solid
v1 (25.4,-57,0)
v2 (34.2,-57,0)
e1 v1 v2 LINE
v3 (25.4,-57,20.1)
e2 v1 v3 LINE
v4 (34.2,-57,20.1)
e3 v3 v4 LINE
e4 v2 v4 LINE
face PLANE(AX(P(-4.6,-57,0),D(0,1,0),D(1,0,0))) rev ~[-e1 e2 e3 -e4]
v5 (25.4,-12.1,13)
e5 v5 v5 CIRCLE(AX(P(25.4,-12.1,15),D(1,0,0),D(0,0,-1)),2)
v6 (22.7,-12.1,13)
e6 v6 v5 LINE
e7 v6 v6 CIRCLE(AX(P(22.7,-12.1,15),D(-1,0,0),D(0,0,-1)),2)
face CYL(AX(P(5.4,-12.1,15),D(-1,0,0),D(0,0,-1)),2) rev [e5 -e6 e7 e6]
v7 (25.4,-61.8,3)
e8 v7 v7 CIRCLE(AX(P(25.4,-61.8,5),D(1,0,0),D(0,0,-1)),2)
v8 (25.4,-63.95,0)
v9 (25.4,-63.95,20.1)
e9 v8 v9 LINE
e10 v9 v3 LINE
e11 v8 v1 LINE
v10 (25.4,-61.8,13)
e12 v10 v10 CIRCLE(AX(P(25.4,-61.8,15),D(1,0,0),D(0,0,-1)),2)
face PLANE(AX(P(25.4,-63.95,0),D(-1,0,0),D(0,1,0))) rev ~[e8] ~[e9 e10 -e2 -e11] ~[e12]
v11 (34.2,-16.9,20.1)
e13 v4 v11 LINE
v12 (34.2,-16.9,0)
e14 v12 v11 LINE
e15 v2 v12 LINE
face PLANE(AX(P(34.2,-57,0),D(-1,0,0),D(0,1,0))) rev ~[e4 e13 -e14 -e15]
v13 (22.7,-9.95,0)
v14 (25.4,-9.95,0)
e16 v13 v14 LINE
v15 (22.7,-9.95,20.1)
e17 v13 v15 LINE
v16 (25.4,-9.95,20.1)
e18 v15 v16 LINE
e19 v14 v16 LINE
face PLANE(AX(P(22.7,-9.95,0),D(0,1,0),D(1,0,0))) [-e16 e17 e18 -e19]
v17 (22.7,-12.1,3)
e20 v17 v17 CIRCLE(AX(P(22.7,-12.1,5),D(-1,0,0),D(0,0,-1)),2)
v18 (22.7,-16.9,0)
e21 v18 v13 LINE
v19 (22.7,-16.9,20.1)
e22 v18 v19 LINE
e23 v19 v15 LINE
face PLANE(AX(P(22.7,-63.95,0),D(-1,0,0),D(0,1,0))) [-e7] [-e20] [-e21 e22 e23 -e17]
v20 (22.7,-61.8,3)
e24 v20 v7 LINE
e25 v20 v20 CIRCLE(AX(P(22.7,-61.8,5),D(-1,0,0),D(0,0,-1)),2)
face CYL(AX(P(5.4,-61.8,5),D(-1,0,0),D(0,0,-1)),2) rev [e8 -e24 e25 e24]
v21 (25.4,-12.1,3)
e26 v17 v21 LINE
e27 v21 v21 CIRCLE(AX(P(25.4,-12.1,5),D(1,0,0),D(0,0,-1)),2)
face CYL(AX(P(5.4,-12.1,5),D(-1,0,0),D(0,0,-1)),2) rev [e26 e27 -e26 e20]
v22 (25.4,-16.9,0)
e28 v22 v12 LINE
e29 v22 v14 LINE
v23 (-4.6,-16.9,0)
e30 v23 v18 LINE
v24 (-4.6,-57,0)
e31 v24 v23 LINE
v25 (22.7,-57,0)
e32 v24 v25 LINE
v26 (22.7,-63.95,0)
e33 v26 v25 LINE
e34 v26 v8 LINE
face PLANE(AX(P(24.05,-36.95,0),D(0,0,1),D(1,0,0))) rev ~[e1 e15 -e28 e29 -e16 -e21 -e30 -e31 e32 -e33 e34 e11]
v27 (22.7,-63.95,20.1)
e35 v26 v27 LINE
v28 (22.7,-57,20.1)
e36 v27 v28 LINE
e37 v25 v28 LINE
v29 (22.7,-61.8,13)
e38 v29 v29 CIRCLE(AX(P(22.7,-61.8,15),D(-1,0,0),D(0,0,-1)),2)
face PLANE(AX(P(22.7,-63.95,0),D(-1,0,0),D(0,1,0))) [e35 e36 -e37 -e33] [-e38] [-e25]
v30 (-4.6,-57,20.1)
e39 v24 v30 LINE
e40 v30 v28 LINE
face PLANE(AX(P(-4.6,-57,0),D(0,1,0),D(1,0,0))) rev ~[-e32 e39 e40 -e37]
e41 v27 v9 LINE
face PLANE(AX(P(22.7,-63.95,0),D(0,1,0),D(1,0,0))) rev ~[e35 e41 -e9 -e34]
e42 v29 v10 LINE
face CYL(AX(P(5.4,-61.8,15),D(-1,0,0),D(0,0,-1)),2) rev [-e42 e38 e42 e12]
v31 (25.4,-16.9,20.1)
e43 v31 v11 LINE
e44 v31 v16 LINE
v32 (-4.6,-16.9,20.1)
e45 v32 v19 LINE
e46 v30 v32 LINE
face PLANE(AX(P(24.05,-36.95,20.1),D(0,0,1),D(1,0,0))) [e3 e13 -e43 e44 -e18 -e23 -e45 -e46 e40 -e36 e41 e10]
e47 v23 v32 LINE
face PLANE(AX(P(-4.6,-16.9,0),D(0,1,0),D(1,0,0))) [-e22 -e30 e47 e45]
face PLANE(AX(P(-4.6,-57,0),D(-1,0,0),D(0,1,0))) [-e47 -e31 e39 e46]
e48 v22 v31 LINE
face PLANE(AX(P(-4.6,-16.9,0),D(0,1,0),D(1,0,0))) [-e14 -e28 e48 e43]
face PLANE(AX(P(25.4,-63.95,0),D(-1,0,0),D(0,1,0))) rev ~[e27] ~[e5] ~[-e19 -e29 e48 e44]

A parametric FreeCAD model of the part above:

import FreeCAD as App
import Part
import Sketcher


def add_polygon(sketch, points):
    """Adds a closed chain of lines whose ends are joined by coincident constraints."""
    first, n = sketch.GeometryCount, len(points)
    for a, b in zip(points, points[1:] + points[:1]):
        sketch.addGeometry(Part.LineSegment(App.Vector(*a, 0), App.Vector(*b, 0)), False)
    for i in range(n):
        sketch.addConstraint(Sketcher.Constraint("Coincident", first + i, 2, first + (i + 1) % n, 1))

doc = App.newDocument("Part")
body = doc.addObject("PartDesign::Body", "Body")

sketch1 = body.newObject("Sketcher::SketchObject", "Sketch")
sketch1.AttachmentSupport = (doc.getObject("YZ_Plane"), [""])
sketch1.MapMode = "FlatFace"
sketch1.AttachmentOffset = App.Placement(App.Vector(0, 0, 9.4), App.Rotation())
sketch1.addGeometry(Part.Circle(App.Vector(-71.8, 5, 0), App.Vector(0, 0, 1), 2), False)
sketch1.addConstraint([
    Sketcher.Constraint("Diameter", 0, 4.0),
    Sketcher.Constraint("DistanceY", -1, 1, 0, 3, 5.0),
    Sketcher.Constraint("DistanceX", 0, 3, -1, 1, 71.8),
])
pad1 = body.newObject("PartDesign::Pad", "Pad")
pad1.Profile = sketch1
pad1.Length = 20
body2 = doc.addObject("PartDesign::Body", "Body001")

sketch2 = body2.newObject("Sketcher::SketchObject", "Sketch001")
sketch2.AttachmentSupport = (doc.getObject("YZ_Plane001"), [""])
sketch2.MapMode = "FlatFace"
sketch2.AttachmentOffset = App.Placement(App.Vector(0, 0, 9.4), App.Rotation())
sketch2.addGeometry(Part.Circle(App.Vector(-71.8, 15, 0), App.Vector(0, 0, 1), 2), False)
sketch2.addConstraint([
    Sketcher.Constraint("Diameter", 0, 4.0),
    Sketcher.Constraint("DistanceY", -1, 1, 0, 3, 15.0),
    Sketcher.Constraint("DistanceX", 0, 3, -1, 1, 71.8),
])
pad2 = body2.newObject("PartDesign::Pad", "Pad001")
pad2.Profile = sketch2
pad2.Length = 20
body3 = doc.addObject("PartDesign::Body", "Body002")

sketch3 = body3.newObject("Sketcher::SketchObject", "Sketch002")
sketch3.AttachmentSupport = (doc.getObject("YZ_Plane002"), [""])
sketch3.MapMode = "FlatFace"
sketch3.AttachmentOffset = App.Placement(App.Vector(0, 0, 9.4), App.Rotation())
sketch3.addGeometry(Part.Circle(App.Vector(-22.1, 5, 0), App.Vector(0, 0, 1), 2), False)
sketch3.addConstraint([
    Sketcher.Constraint("Diameter", 0, 4.0),
    Sketcher.Constraint("DistanceY", -1, 1, 0, 3, 5.0),
    Sketcher.Constraint("DistanceX", 0, 3, -1, 1, 22.1),
])
pad3 = body3.newObject("PartDesign::Pad", "Pad002")
pad3.Profile = sketch3
pad3.Length = 20
body4 = doc.addObject("PartDesign::Body", "Body003")

sketch4 = body4.newObject("Sketcher::SketchObject", "Sketch003")
sketch4.AttachmentSupport = (doc.getObject("YZ_Plane003"), [""])
sketch4.MapMode = "FlatFace"
sketch4.AttachmentOffset = App.Placement(App.Vector(0, 0, 9.4), App.Rotation())
sketch4.addGeometry(Part.Circle(App.Vector(-22.1, 15, 0), App.Vector(0, 0, 1), 2), False)
sketch4.addConstraint([
    Sketcher.Constraint("Diameter", 0, 4.0),
    Sketcher.Constraint("DistanceY", -1, 1, 0, 3, 15.0),
    Sketcher.Constraint("DistanceX", 0, 3, -1, 1, 22.1),
])
pad4 = body4.newObject("PartDesign::Pad", "Pad003")
pad4.Profile = sketch4
pad4.Length = 20
body5 = doc.addObject("PartDesign::Body", "Body004")

sketch5 = body5.newObject("Sketcher::SketchObject", "Sketch004")
sketch5.AttachmentSupport = (doc.getObject("XY_Plane004"), [""])
sketch5.MapMode = "FlatFace"
add_polygon(sketch5, [(109.3, -46), (109.3, -100), (112, -100), (112, -46)])
sketch5.addConstraint([
    Sketcher.Constraint("Vertical", 0),
    Sketcher.Constraint("Horizontal", 1),
    Sketcher.Constraint("Vertical", 2),
    Sketcher.Constraint("Horizontal", 3),
    Sketcher.Constraint("DistanceY", 0, 2, 0, 1, 54.0),
    Sketcher.Constraint("DistanceX", 1, 1, 1, 2, 2.7),
    Sketcher.Constraint("DistanceX", -1, 1, 1, 2, 112.0),
    Sketcher.Constraint("DistanceY", 0, 2, -1, 1, 99.95),
])
pad5 = body5.newObject("PartDesign::Pad", "Pad004")
pad5.Profile = sketch5
pad5.Length = 20.1
body6 = doc.addObject("PartDesign::Body", "Body005")

sketch6 = body6.newObject("Sketcher::SketchObject", "Sketch005")
sketch6.AttachmentSupport = (doc.getObject("XY_Plane005"), [""])
sketch6.MapMode = "FlatFace"
add_polygon(sketch6, [(82, -53), (82, -93), (121, -93), (121, -53)])
sketch6.addConstraint([
    Sketcher.Constraint("Vertical", 0),
    Sketcher.Constraint("Horizontal", 1),
    Sketcher.Constraint("Vertical", 2),
    Sketcher.Constraint("Horizontal", 3),
    Sketcher.Constraint("DistanceX", 1, 1, 1, 2, 38.8),
    Sketcher.Constraint("DistanceY", 0, 2, 0, 1, 40.1),
    Sketcher.Constraint("DistanceX", -1, 1, 0, 2, 82.0),
    Sketcher.Constraint("DistanceY", 0, 2, -1, 1, 93.0),
])
pad6 = body6.newObject("PartDesign::Pad", "Pad005")
pad6.Profile = sketch6
pad6.Length = 20.1
doc.recompute()

boolean = body6.newObject("PartDesign::Boolean", "Boolean")
boolean.Type = "Fuse"
boolean.addObjects([body5])
body7 = doc.addObject("PartDesign::Body", "Body006")
doc.recompute()

body6.Placement = App.Placement(App.Vector(-82.6, 26, 0), App.Rotation(App.Vector(0, 0, 1), 0))
boolean2 = body7.newObject("PartDesign::Boolean", "Boolean001")
boolean2.Type = "Fuse"
boolean2.addObjects([body6])
doc.recompute()

boolean3 = body7.newObject("PartDesign::Boolean", "Boolean002")
boolean3.Type = "Cut"
boolean3.addObjects([body4])
doc.recompute()

boolean4 = body7.newObject("PartDesign::Boolean", "Boolean003")
boolean4.Type = "Cut"
boolean4.addObjects([body3])
doc.recompute()

boolean5 = body7.newObject("PartDesign::Boolean", "Boolean004")
boolean5.Type = "Cut"
boolean5.addObjects([body2])
doc.recompute()

boolean6 = body7.newObject("PartDesign::Boolean", "Boolean005")
boolean6.Type = "Cut"
boolean6.addObjects([body])
body8 = doc.addObject("PartDesign::Body", "Body007")
doc.recompute()

body7.Placement = App.Placement(App.Vector(-4, 10, 0), App.Rotation(App.Vector(0, 0, 1), 0))
boolean7 = body8.newObject("PartDesign::Boolean", "Boolean006")
boolean7.Type = "Fuse"
boolean7.addObjects([body7])

doc.recompute()
